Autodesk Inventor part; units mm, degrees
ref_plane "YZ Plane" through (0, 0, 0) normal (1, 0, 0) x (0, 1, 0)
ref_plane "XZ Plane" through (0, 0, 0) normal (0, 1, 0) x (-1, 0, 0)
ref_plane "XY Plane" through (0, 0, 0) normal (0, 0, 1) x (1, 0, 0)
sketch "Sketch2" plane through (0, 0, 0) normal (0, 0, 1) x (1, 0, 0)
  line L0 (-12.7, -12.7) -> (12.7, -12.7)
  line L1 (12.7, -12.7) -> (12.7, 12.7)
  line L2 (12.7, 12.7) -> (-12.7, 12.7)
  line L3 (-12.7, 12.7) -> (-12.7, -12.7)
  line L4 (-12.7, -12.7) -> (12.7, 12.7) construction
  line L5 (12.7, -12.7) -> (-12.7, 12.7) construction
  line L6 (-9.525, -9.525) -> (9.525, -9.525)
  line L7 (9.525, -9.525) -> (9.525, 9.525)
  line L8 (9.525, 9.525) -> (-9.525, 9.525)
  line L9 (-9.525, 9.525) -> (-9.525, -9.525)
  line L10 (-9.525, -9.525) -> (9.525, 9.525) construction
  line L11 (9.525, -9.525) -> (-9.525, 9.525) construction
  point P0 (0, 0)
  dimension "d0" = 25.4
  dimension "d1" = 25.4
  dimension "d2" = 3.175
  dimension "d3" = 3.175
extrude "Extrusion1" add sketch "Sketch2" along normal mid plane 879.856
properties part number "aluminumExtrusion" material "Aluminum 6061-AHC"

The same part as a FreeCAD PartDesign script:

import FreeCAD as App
import Part
import Sketcher
Q = App.Units.Quantity


def add_polygon(sketch, points):
    """Adds a closed chain of lines whose ends are joined by coincident constraints."""
    first, n = sketch.GeometryCount, len(points)
    for a, b in zip(points, points[1:] + points[:1]):
        sketch.addGeometry(Part.LineSegment(App.Vector(*a, 0), App.Vector(*b, 0)), False)
    for i in range(n):
        sketch.addConstraint(Sketcher.Constraint("Coincident", first + i, 2, first + (i + 1) % n, 1))

doc = App.newDocument("Part")
body = doc.addObject("PartDesign::Body", "Body")

# Sketch on XY plane
sketch1 = doc.addObject("Sketcher::SketchObject", "Sketch")
body.addObject(sketch1)
sketch1.AttachmentSupport = (doc.XY_Plane, [""])
sketch1.MapMode = "FlatFace"
add_polygon(sketch1, [(-13, 13), (-13, -13), (13, -13), (13, 13)])  # lines 0-3
add_polygon(sketch1, [(10, -10), (-10, -10), (-10, 10), (10, 10)])  # lines 4-7
sketch1.addConstraint(Sketcher.Constraint("Vertical", 0))
sketch1.addConstraint(Sketcher.Constraint("Horizontal", 1))
sketch1.addConstraint(Sketcher.Constraint("Vertical", 2))
sketch1.addConstraint(Sketcher.Constraint("Horizontal", 3))
sketch1.addConstraint(Sketcher.Constraint("Horizontal", 4))
sketch1.addConstraint(Sketcher.Constraint("Vertical", 5))
sketch1.addConstraint(Sketcher.Constraint("Horizontal", 6))
sketch1.addConstraint(Sketcher.Constraint("Vertical", 7))
sketch1.addConstraint(Sketcher.Constraint("Symmetric", 0, 2, 2, 2, -1, 1))
sketch1.addConstraint(Sketcher.Constraint("Symmetric", 4, 2, 6, 2, -1, 1))
sketch1.addConstraint(Sketcher.Constraint("Equal", 3, 0))
sketch1.addConstraint(Sketcher.Constraint("Equal", 6, 5))
sketch1.addConstraint(Sketcher.Constraint("DistanceX", 1, 1, 1, 2, Q("1 in")))
sketch1.addConstraint(Sketcher.Constraint("DistanceX", 0, 2, 4, 2, Q("0.125 in")))
pad1 = doc.addObject("PartDesign::Pad", "Pad")
body.addObject(pad1)
pad1.Profile = sketch1
pad1.Length = Q("34.64 in")
pad1.Midplane = True

doc.recompute()
